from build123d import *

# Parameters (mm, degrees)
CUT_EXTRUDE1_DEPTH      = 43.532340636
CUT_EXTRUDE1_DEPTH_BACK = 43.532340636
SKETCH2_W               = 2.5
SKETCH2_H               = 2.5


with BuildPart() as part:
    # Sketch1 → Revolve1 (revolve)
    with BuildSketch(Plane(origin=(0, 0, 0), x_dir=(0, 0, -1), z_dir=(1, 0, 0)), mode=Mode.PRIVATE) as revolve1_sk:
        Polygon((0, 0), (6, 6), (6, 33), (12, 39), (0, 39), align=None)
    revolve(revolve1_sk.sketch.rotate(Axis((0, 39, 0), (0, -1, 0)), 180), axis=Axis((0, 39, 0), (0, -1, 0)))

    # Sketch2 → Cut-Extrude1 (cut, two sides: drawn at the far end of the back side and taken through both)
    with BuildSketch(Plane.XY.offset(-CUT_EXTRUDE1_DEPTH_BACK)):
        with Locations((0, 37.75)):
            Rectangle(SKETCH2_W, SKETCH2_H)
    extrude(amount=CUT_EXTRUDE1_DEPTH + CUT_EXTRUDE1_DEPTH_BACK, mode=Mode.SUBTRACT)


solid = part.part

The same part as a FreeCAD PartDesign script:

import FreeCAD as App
import Part
import Sketcher
from FreeCAD import Vector


def add_polygon(sketch, points):
    """Adds a closed chain of lines whose ends are joined by coincident constraints."""
    first, n = sketch.GeometryCount, len(points)
    for a, b in zip(points, points[1:] + points[:1]):
        sketch.addGeometry(Part.LineSegment(App.Vector(*a, 0), App.Vector(*b, 0)), False)
    for i in range(n):
        sketch.addConstraint(Sketcher.Constraint("Coincident", first + i, 2, first + (i + 1) % n, 1))

doc = App.newDocument("Part")
body = doc.addObject("PartDesign::Body", "Body")

# Sketch on YZ plane
sketch1 = doc.addObject("Sketcher::SketchObject", "Sketch")
body.addObject(sketch1)
sketch1.AttachmentSupport = (doc.YZ_Plane, [""])
sketch1.MapMode = "FlatFace"
add_polygon(sketch1, [(0, 0), (6, -6), (33, -6), (39, -12), (39, 0)])  # lines 0-4
sketch1.addConstraint(Sketcher.Constraint("Horizontal", 1))
sketch1.addConstraint(Sketcher.Constraint("Vertical", 3))
sketch1.addConstraint(Sketcher.Constraint("Horizontal", 4))
sketch1.addConstraint(Sketcher.Constraint("Coincident", 4, 2, -1, 1))
sketch1.addConstraint(Sketcher.Constraint("Parallel", 0, 2))
sketch1.addConstraint(Sketcher.Constraint("Equal", 0, 2))
sketch1.addConstraint(Sketcher.Constraint("DistanceX", 1, 1, 1, 2, 27.0))
sketch1.addConstraint(Sketcher.Constraint("DistanceX", 4, 2, 4, 1, 39.0))
sketch1.addConstraint(Sketcher.Constraint("DistanceY", 3, 1, 3, 2, 12.0))
revolution = doc.addObject("PartDesign::Revolution", "Revolution")
body.addObject(revolution)
revolution.Profile = sketch1
revolution.ReferenceAxis = (sketch1, ["H_Axis"])
revolution.Angle = 360

# Sketch on XY plane
sketch2 = doc.addObject("Sketcher::SketchObject", "Sketch001")
body.addObject(sketch2)
sketch2.AttachmentSupport = (doc.XY_Plane, [""])
sketch2.MapMode = "FlatFace"
add_polygon(sketch2, [(-1.2, 39), (-1.2, 36.5), (1.2, 36.5), (1.2, 39)])  # lines 0-3
sketch2.addConstraint(Sketcher.Constraint("Vertical", 0))
sketch2.addConstraint(Sketcher.Constraint("Horizontal", 1))
sketch2.addConstraint(Sketcher.Constraint("Vertical", 2))
sketch2.addConstraint(Sketcher.Constraint("Horizontal", 3))
sketch2.addConstraint(Sketcher.Constraint("Equal", 3, 0))
sketch2.addConstraint(Sketcher.Constraint("DistanceX", 1, 1, 1, 2, 2.5))
sketch2.addConstraint(Sketcher.Constraint("DistanceY", -1, 1, 2, 2, 39.0))
sketch2.addConstraint(Sketcher.Constraint("DistanceX", 0, 2, -1, 1, 1.25))
pocket1 = doc.addObject("PartDesign::Pocket", "Pocket")
body.addObject(pocket1)
pocket1.Profile = sketch2
pocket1.Type = "ThroughAll"
pocket1.Midplane = True

doc.recompute()
